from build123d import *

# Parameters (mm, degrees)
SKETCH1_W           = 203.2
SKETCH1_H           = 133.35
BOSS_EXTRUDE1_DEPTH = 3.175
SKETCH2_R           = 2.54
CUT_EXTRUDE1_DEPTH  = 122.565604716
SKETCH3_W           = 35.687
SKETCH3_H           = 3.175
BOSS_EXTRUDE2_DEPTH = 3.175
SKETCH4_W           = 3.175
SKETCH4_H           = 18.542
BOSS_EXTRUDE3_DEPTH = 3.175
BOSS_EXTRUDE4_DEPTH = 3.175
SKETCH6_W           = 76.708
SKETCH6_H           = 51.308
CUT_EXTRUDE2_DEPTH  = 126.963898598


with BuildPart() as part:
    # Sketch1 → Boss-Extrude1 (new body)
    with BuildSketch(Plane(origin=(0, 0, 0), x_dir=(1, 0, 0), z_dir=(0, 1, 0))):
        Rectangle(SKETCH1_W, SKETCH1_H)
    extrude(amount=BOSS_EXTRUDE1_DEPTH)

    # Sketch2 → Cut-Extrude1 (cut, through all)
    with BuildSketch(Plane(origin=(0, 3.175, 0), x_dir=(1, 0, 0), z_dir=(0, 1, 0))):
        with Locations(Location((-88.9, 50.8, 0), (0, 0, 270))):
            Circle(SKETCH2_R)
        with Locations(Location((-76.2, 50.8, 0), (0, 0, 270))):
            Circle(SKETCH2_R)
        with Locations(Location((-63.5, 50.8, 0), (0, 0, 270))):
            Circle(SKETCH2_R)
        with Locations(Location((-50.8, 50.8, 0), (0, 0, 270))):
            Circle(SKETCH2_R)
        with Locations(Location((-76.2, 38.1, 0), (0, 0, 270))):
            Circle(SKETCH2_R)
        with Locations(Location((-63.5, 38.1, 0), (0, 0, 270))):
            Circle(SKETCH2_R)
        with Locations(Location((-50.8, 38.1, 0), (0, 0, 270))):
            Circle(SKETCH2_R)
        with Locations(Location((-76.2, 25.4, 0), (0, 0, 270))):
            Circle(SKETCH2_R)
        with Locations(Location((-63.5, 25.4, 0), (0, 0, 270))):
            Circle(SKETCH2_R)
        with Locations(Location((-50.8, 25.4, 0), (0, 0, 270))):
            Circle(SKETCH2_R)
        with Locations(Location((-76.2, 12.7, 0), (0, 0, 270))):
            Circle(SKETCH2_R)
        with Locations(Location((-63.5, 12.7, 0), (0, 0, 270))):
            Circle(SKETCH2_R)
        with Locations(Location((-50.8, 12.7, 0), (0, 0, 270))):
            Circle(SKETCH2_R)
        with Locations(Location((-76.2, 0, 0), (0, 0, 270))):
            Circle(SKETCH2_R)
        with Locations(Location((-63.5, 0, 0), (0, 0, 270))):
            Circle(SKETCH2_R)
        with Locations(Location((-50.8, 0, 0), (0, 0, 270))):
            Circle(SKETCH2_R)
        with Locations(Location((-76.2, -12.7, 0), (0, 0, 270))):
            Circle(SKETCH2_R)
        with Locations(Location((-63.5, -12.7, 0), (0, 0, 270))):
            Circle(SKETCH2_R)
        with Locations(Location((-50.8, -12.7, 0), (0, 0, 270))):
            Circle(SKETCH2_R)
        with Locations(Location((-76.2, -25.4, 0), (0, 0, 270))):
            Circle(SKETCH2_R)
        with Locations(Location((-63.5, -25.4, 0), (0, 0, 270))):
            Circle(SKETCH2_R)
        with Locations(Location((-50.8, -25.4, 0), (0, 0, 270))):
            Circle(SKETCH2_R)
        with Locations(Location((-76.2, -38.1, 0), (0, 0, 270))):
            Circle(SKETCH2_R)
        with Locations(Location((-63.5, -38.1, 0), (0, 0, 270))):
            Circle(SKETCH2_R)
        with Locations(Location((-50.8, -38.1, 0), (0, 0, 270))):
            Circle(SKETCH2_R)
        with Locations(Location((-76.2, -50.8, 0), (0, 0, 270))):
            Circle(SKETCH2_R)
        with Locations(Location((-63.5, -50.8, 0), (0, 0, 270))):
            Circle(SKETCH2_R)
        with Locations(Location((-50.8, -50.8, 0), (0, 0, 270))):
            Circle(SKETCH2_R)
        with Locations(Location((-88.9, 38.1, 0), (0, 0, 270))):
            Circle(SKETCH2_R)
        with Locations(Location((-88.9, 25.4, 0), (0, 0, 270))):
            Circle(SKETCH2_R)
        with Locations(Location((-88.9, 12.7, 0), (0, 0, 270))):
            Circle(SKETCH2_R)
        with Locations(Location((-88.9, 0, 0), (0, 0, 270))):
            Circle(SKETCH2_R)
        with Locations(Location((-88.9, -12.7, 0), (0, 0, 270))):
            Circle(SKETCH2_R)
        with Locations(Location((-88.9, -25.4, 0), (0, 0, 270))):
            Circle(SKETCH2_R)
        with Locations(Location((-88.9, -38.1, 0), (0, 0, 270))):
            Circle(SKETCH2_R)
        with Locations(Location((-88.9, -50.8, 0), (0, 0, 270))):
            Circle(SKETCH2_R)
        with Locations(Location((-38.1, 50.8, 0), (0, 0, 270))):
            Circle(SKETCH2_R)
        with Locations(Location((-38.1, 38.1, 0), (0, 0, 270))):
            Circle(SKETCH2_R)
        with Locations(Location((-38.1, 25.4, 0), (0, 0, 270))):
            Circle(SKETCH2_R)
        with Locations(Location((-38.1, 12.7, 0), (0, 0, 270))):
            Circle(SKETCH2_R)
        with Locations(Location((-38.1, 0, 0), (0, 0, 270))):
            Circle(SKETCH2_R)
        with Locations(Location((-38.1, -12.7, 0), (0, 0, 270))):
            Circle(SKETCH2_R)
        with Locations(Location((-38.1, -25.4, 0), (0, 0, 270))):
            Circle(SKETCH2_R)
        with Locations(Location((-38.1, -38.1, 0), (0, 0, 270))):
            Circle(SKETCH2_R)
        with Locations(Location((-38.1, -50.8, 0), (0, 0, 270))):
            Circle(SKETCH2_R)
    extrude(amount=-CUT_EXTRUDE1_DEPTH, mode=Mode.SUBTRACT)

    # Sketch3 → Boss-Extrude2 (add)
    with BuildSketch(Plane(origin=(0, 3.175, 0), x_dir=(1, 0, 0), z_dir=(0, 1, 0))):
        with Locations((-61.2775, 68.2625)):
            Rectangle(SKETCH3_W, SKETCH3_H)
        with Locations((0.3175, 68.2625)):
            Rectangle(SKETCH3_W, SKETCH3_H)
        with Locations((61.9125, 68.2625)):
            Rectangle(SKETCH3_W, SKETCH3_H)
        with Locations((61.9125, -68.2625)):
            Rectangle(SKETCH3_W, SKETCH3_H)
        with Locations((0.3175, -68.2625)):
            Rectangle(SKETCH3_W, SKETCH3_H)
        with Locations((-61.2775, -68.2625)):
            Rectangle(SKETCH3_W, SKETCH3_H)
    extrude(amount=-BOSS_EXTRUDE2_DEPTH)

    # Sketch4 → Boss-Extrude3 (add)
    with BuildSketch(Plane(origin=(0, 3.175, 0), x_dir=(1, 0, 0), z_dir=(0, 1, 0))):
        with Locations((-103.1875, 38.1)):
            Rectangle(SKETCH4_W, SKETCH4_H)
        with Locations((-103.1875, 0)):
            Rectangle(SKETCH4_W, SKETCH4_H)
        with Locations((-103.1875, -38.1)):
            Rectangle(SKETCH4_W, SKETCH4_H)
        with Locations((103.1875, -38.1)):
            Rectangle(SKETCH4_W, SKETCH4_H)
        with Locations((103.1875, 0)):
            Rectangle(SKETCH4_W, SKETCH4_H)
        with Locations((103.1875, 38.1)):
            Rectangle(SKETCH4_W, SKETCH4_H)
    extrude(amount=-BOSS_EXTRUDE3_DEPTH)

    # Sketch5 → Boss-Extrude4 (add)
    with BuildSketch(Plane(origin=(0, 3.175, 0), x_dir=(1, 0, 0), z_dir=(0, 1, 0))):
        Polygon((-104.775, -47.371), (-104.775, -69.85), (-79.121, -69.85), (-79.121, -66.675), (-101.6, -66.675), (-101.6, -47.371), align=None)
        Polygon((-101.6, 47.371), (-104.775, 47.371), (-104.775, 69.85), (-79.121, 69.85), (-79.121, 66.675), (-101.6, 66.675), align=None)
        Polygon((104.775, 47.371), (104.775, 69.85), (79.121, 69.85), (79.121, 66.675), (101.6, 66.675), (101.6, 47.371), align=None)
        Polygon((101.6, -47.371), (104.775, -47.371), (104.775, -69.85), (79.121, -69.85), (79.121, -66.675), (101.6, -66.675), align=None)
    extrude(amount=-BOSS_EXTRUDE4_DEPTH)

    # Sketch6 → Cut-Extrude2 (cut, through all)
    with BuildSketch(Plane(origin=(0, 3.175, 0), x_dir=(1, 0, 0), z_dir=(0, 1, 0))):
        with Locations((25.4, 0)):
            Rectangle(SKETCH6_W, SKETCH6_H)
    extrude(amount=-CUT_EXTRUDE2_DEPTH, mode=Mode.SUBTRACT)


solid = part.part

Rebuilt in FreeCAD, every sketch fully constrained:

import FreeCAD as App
import Part
import Sketcher
Q = App.Units.Quantity


def add_polygon(sketch, points):
    """Adds a closed chain of lines whose ends are joined by coincident constraints."""
    first, n = sketch.GeometryCount, len(points)
    for a, b in zip(points, points[1:] + points[:1]):
        sketch.addGeometry(Part.LineSegment(App.Vector(*a, 0), App.Vector(*b, 0)), False)
    for i in range(n):
        sketch.addConstraint(Sketcher.Constraint("Coincident", first + i, 2, first + (i + 1) % n, 1))

doc = App.newDocument("Part")
body = doc.addObject("PartDesign::Body", "Body")

sketch1 = body.newObject("Sketcher::SketchObject", "Sketch")
sketch1.AttachmentSupport = (doc.getObject("XZ_Plane"), [""])
sketch1.MapMode = "FlatFace"
add_polygon(sketch1, [(-102, -67), (-102, 67), (102, 67), (102, -67)])
sketch1.addConstraint(Sketcher.Constraint("Vertical", 0))
sketch1.addConstraint(Sketcher.Constraint("Horizontal", 1))
sketch1.addConstraint(Sketcher.Constraint("Vertical", 2))
sketch1.addConstraint(Sketcher.Constraint("Horizontal", 3))
sketch1.addConstraint(Sketcher.Constraint("Symmetric", 0, 2, 2, 2, -1, 1))
sketch1.addConstraint(Sketcher.Constraint("DistanceX", 1, 1, 1, 2, Q("8 in")))
sketch1.addConstraint(Sketcher.Constraint("DistanceY", 0, 1, 0, 2, Q("5.25 in")))
pad1 = body.newObject("PartDesign::Pad", "Pad")
pad1.Profile = sketch1
pad1.Length = Q("0.125 in")
pad1.Reversed = True

sketch2 = body.newObject("Sketcher::SketchObject", "Sketch001")
sketch2.AttachmentSupport = (doc.getObject("XZ_Plane"), [""])
sketch2.MapMode = "FlatFace"
sketch2.AttachmentOffset = App.Placement(App.Vector(0, 0, -0.125 * 25.4), App.Rotation())
sketch2.addGeometry(Part.Circle(App.Vector(-88.9, -50.8, 0), App.Vector(0, 0, 1), 2.5), False)
sketch2.addGeometry(Part.Circle(App.Vector(-76.2, -50.8, 0), App.Vector(0, 0, 1), 2.5), False)
sketch2.addGeometry(Part.Circle(App.Vector(-63.5, -50.8, 0), App.Vector(0, 0, 1), 2.5), False)
sketch2.addGeometry(Part.Circle(App.Vector(-50.8, -50.8, 0), App.Vector(0, 0, 1), 2.5), False)
sketch2.addGeometry(Part.Circle(App.Vector(-76.2, -38.1, 0), App.Vector(0, 0, 1), 2.5), False)
sketch2.addGeometry(Part.Circle(App.Vector(-63.5, -38.1, 0), App.Vector(0, 0, 1), 2.5), False)
sketch2.addGeometry(Part.Circle(App.Vector(-50.8, -38.1, 0), App.Vector(0, 0, 1), 2.5), False)
sketch2.addGeometry(Part.Circle(App.Vector(-76.2, -25.4, 0), App.Vector(0, 0, 1), 2.5), False)
sketch2.addGeometry(Part.Circle(App.Vector(-63.5, -25.4, 0), App.Vector(0, 0, 1), 2.5), False)
sketch2.addGeometry(Part.Circle(App.Vector(-50.8, -25.4, 0), App.Vector(0, 0, 1), 2.5), False)
sketch2.addGeometry(Part.Circle(App.Vector(-76.2, -12.7, 0), App.Vector(0, 0, 1), 2.5), False)
sketch2.addGeometry(Part.Circle(App.Vector(-63.5, -12.7, 0), App.Vector(0, 0, 1), 2.5), False)
sketch2.addGeometry(Part.Circle(App.Vector(-50.8, -12.7, 0), App.Vector(0, 0, 1), 2.5), False)
sketch2.addGeometry(Part.Circle(App.Vector(-76.2, 0, 0), App.Vector(0, 0, 1), 2.5), False)
sketch2.addGeometry(Part.Circle(App.Vector(-63.5, 0, 0), App.Vector(0, 0, 1), 2.5), False)
sketch2.addGeometry(Part.Circle(App.Vector(-50.8, 0, 0), App.Vector(0, 0, 1), 2.5), False)
sketch2.addGeometry(Part.Circle(App.Vector(-76.2, 12.7, 0), App.Vector(0, 0, 1), 2.5), False)
sketch2.addGeometry(Part.Circle(App.Vector(-63.5, 12.7, 0), App.Vector(0, 0, 1), 2.5), False)
sketch2.addGeometry(Part.Circle(App.Vector(-50.8, 12.7, 0), App.Vector(0, 0, 1), 2.5), False)
sketch2.addGeometry(Part.Circle(App.Vector(-76.2, 25.4, 0), App.Vector(0, 0, 1), 2.5), False)
sketch2.addGeometry(Part.Circle(App.Vector(-63.5, 25.4, 0), App.Vector(0, 0, 1), 2.5), False)
sketch2.addGeometry(Part.Circle(App.Vector(-50.8, 25.4, 0), App.Vector(0, 0, 1), 2.5), False)
sketch2.addGeometry(Part.Circle(App.Vector(-76.2, 38.1, 0), App.Vector(0, 0, 1), 2.5), False)
sketch2.addGeometry(Part.Circle(App.Vector(-63.5, 38.1, 0), App.Vector(0, 0, 1), 2.5), False)
sketch2.addGeometry(Part.Circle(App.Vector(-50.8, 38.1, 0), App.Vector(0, 0, 1), 2.5), False)
sketch2.addGeometry(Part.Circle(App.Vector(-76.2, 50.8, 0), App.Vector(0, 0, 1), 2.5), False)
sketch2.addGeometry(Part.Circle(App.Vector(-63.5, 50.8, 0), App.Vector(0, 0, 1), 2.5), False)
sketch2.addGeometry(Part.Circle(App.Vector(-50.8, 50.8, 0), App.Vector(0, 0, 1), 2.5), False)
sketch2.addGeometry(Part.Circle(App.Vector(-88.9, -38.1, 0), App.Vector(0, 0, 1), 2.5), False)
sketch2.addGeometry(Part.Circle(App.Vector(-88.9, -25.4, 0), App.Vector(0, 0, 1), 2.5), False)
sketch2.addGeometry(Part.Circle(App.Vector(-88.9, -12.7, 0), App.Vector(0, 0, 1), 2.5), False)
sketch2.addGeometry(Part.Circle(App.Vector(-88.9, 0, 0), App.Vector(0, 0, 1), 2.5), False)
sketch2.addGeometry(Part.Circle(App.Vector(-88.9, 12.7, 0), App.Vector(0, 0, 1), 2.5), False)
sketch2.addGeometry(Part.Circle(App.Vector(-88.9, 25.4, 0), App.Vector(0, 0, 1), 2.5), False)
sketch2.addGeometry(Part.Circle(App.Vector(-88.9, 38.1, 0), App.Vector(0, 0, 1), 2.5), False)
sketch2.addGeometry(Part.Circle(App.Vector(-88.9, 50.8, 0), App.Vector(0, 0, 1), 2.5), False)
sketch2.addGeometry(Part.Circle(App.Vector(-38.1, -50.8, 0), App.Vector(0, 0, 1), 2.5), False)
sketch2.addGeometry(Part.Circle(App.Vector(-38.1, -38.1, 0), App.Vector(0, 0, 1), 2.5), False)
sketch2.addGeometry(Part.Circle(App.Vector(-38.1, -25.4, 0), App.Vector(0, 0, 1), 2.5), False)
sketch2.addGeometry(Part.Circle(App.Vector(-38.1, -12.7, 0), App.Vector(0, 0, 1), 2.5), False)
sketch2.addGeometry(Part.Circle(App.Vector(-38.1, 0, 0), App.Vector(0, 0, 1), 2.5), False)
sketch2.addGeometry(Part.Circle(App.Vector(-38.1, 12.7, 0), App.Vector(0, 0, 1), 2.5), False)
sketch2.addGeometry(Part.Circle(App.Vector(-38.1, 25.4, 0), App.Vector(0, 0, 1), 2.5), False)
sketch2.addGeometry(Part.Circle(App.Vector(-38.1, 38.1, 0), App.Vector(0, 0, 1), 2.5), False)
sketch2.addGeometry(Part.Circle(App.Vector(-38.1, 50.8, 0), App.Vector(0, 0, 1), 2.5), False)
sketch2.addConstraint(Sketcher.Constraint("Equal", 0, 1))
sketch2.addConstraint(Sketcher.Constraint("Equal", 1, 2))
sketch2.addConstraint(Sketcher.Constraint("Equal", 2, 3))
sketch2.addConstraint(Sketcher.Constraint("Equal", 3, 4))
sketch2.addConstraint(Sketcher.Constraint("Equal", 4, 5))
sketch2.addConstraint(Sketcher.Constraint("Equal", 5, 6))
sketch2.addConstraint(Sketcher.Constraint("Equal", 6, 7))
sketch2.addConstraint(Sketcher.Constraint("Equal", 7, 8))
sketch2.addConstraint(Sketcher.Constraint("Equal", 8, 9))
sketch2.addConstraint(Sketcher.Constraint("Equal", 9, 10))
sketch2.addConstraint(Sketcher.Constraint("Equal", 10, 11))
sketch2.addConstraint(Sketcher.Constraint("Equal", 11, 12))
sketch2.addConstraint(Sketcher.Constraint("Equal", 12, 13))
sketch2.addConstraint(Sketcher.Constraint("Equal", 13, 14))
sketch2.addConstraint(Sketcher.Constraint("Equal", 14, 15))
sketch2.addConstraint(Sketcher.Constraint("Equal", 15, 16))
sketch2.addConstraint(Sketcher.Constraint("Equal", 16, 17))
sketch2.addConstraint(Sketcher.Constraint("Equal", 17, 18))
sketch2.addConstraint(Sketcher.Constraint("Equal", 18, 19))
sketch2.addConstraint(Sketcher.Constraint("Equal", 19, 20))
sketch2.addConstraint(Sketcher.Constraint("Equal", 20, 21))
sketch2.addConstraint(Sketcher.Constraint("Equal", 21, 22))
sketch2.addConstraint(Sketcher.Constraint("Equal", 22, 23))
sketch2.addConstraint(Sketcher.Constraint("Equal", 23, 24))
sketch2.addConstraint(Sketcher.Constraint("Equal", 24, 25))
sketch2.addConstraint(Sketcher.Constraint("Equal", 25, 26))
sketch2.addConstraint(Sketcher.Constraint("Equal", 26, 27))
sketch2.addConstraint(Sketcher.Constraint("Equal", 27, 28))
sketch2.addConstraint(Sketcher.Constraint("Equal", 28, 29))
sketch2.addConstraint(Sketcher.Constraint("Equal", 29, 30))
sketch2.addConstraint(Sketcher.Constraint("Equal", 30, 31))
sketch2.addConstraint(Sketcher.Constraint("Equal", 31, 32))
sketch2.addConstraint(Sketcher.Constraint("Equal", 32, 33))
sketch2.addConstraint(Sketcher.Constraint("Equal", 33, 34))
sketch2.addConstraint(Sketcher.Constraint("Equal", 34, 35))
sketch2.addConstraint(Sketcher.Constraint("Equal", 35, 36))
sketch2.addConstraint(Sketcher.Constraint("Equal", 36, 37))
sketch2.addConstraint(Sketcher.Constraint("Equal", 37, 38))
sketch2.addConstraint(Sketcher.Constraint("Equal", 38, 39))
sketch2.addConstraint(Sketcher.Constraint("Equal", 39, 40))
sketch2.addConstraint(Sketcher.Constraint("Equal", 40, 41))
sketch2.addConstraint(Sketcher.Constraint("Equal", 41, 42))
sketch2.addConstraint(Sketcher.Constraint("Equal", 42, 43))
sketch2.addConstraint(Sketcher.Constraint("Equal", 43, 44))
sketch2.addConstraint(Sketcher.Constraint("Symmetric", 10, 3, 16, 3, -1))
sketch2.addConstraint(Sketcher.Constraint("Symmetric", 11, 3, 17, 3, -1))
sketch2.addConstraint(Sketcher.Constraint("Symmetric", 12, 3, 18, 3, -1))
sketch2.addConstraint(Sketcher.Constraint("Symmetric", 7, 3, 19, 3, -1))
sketch2.addConstraint(Sketcher.Constraint("Symmetric", 8, 3, 20, 3, -1))
sketch2.addConstraint(Sketcher.Constraint("Symmetric", 9, 3, 21, 3, -1))
sketch2.addConstraint(Sketcher.Constraint("Symmetric", 4, 3, 22, 3, -1))
sketch2.addConstraint(Sketcher.Constraint("Symmetric", 5, 3, 23, 3, -1))
sketch2.addConstraint(Sketcher.Constraint("Symmetric", 6, 3, 24, 3, -1))
sketch2.addConstraint(Sketcher.Constraint("Symmetric", 1, 3, 25, 3, -1))
sketch2.addConstraint(Sketcher.Constraint("Symmetric", 2, 3, 26, 3, -1))
sketch2.addConstraint(Sketcher.Constraint("Symmetric", 3, 3, 27, 3, -1))
sketch2.addConstraint(Sketcher.Constraint("Symmetric", 30, 3, 32, 3, -1))
sketch2.addConstraint(Sketcher.Constraint("Symmetric", 29, 3, 33, 3, -1))
sketch2.addConstraint(Sketcher.Constraint("Symmetric", 28, 3, 34, 3, -1))
sketch2.addConstraint(Sketcher.Constraint("Symmetric", 0, 3, 35, 3, -1))
sketch2.addConstraint(Sketcher.Constraint("Symmetric", 39, 3, 41, 3, -1))
sketch2.addConstraint(Sketcher.Constraint("Symmetric", 38, 3, 42, 3, -1))
sketch2.addConstraint(Sketcher.Constraint("Symmetric", 37, 3, 43, 3, -1))
sketch2.addConstraint(Sketcher.Constraint("Symmetric", 36, 3, 44, 3, -1))
sketch2.addConstraint(Sketcher.Constraint("PointOnObject", 13, 3, -1))
sketch2.addConstraint(Sketcher.Constraint("PointOnObject", 14, 3, -1))
sketch2.addConstraint(Sketcher.Constraint("PointOnObject", 15, 3, -1))
sketch2.addConstraint(Sketcher.Constraint("PointOnObject", 31, 3, -1))
sketch2.addConstraint(Sketcher.Constraint("PointOnObject", 40, 3, -1))
sketch2.addConstraint(Sketcher.Constraint("Horizontal", 0, 3, 1, 3))
sketch2.addConstraint(Sketcher.Constraint("Horizontal", 1, 3, 2, 3))
sketch2.addConstraint(Sketcher.Constraint("Horizontal", 2, 3, 3, 3))
sketch2.addConstraint(Sketcher.Constraint("Horizontal", 4, 3, 5, 3))
sketch2.addConstraint(Sketcher.Constraint("Horizontal", 5, 3, 6, 3))
sketch2.addConstraint(Sketcher.Constraint("Horizontal", 7, 3, 8, 3))
sketch2.addConstraint(Sketcher.Constraint("Horizontal", 8, 3, 9, 3))
sketch2.addConstraint(Sketcher.Constraint("Horizontal", 10, 3, 11, 3))
sketch2.addConstraint(Sketcher.Constraint("Horizontal", 11, 3, 12, 3))
sketch2.addConstraint(Sketcher.Constraint("Horizontal", 6, 3, 28, 3))
sketch2.addConstraint(Sketcher.Constraint("Horizontal", 9, 3, 29, 3))
sketch2.addConstraint(Sketcher.Constraint("Horizontal", 12, 3, 30, 3))
sketch2.addConstraint(Sketcher.Constraint("Horizontal", 3, 3, 36, 3))
sketch2.addConstraint(Sketcher.Constraint("Horizontal", 28, 3, 37, 3))
sketch2.addConstraint(Sketcher.Constraint("Horizontal", 29, 3, 38, 3))
sketch2.addConstraint(Sketcher.Constraint("Horizontal", 30, 3, 39, 3))
sketch2.addConstraint(Sketcher.Constraint("Vertical", 1, 3, 4, 3))
sketch2.addConstraint(Sketcher.Constraint("Vertical", 2, 3, 5, 3))
sketch2.addConstraint(Sketcher.Constraint("Vertical", 3, 3, 6, 3))
sketch2.addConstraint(Sketcher.Constraint("Vertical", 4, 3, 7, 3))
sketch2.addConstraint(Sketcher.Constraint("Vertical", 5, 3, 8, 3))
sketch2.addConstraint(Sketcher.Constraint("Vertical", 6, 3, 9, 3))
sketch2.addConstraint(Sketcher.Constraint("Vertical", 7, 3, 10, 3))
sketch2.addConstraint(Sketcher.Constraint("Vertical", 8, 3, 11, 3))
sketch2.addConstraint(Sketcher.Constraint("Vertical", 9, 3, 12, 3))
sketch2.addConstraint(Sketcher.Constraint("Vertical", 10, 3, 13, 3))
sketch2.addConstraint(Sketcher.Constraint("Vertical", 11, 3, 14, 3))
sketch2.addConstraint(Sketcher.Constraint("Vertical", 12, 3, 15, 3))
sketch2.addConstraint(Sketcher.Constraint("Vertical", 0, 3, 28, 3))
sketch2.addConstraint(Sketcher.Constraint("Vertical", 28, 3, 29, 3))
sketch2.addConstraint(Sketcher.Constraint("Vertical", 29, 3, 30, 3))
sketch2.addConstraint(Sketcher.Constraint("Vertical", 30, 3, 31, 3))
sketch2.addConstraint(Sketcher.Constraint("Vertical", 36, 3, 37, 3))
sketch2.addConstraint(Sketcher.Constraint("Vertical", 37, 3, 38, 3))
sketch2.addConstraint(Sketcher.Constraint("Vertical", 38, 3, 39, 3))
sketch2.addConstraint(Sketcher.Constraint("Vertical", 39, 3, 40, 3))
sketch2.addConstraint(Sketcher.Constraint("Diameter", 0, Q("0.2 in")))
sketch2.addConstraint(Sketcher.Constraint("DistanceY", 0, 3, -1, 1, Q("2 in")))
sketch2.addConstraint(Sketcher.Constraint("DistanceX", 1, 3, -1, 1, Q("3 in")))
sketch2.addConstraint(Sketcher.Constraint("DistanceX", 3, 3, -1, 1, Q("2 in")))
sketch2.addConstraint(Sketcher.Constraint("DistanceY", 7, 3, -1, 1, Q("1 in")))
sketch2.addConstraint(Sketcher.Constraint("DistanceX", 0, 3, 2, 3, Q("1 in")))
sketch2.addConstraint(Sketcher.Constraint("DistanceY", 4, 3, 10, 3, Q("1 in")))
sketch2.addConstraint(Sketcher.Constraint("DistanceY", 10, 3, 16, 3, Q("1 in")))
sketch2.addConstraint(Sketcher.Constraint("DistanceX", 2, 3, 36, 3, Q("1 in")))
sketch2.addConstraint(Sketcher.Constraint("DistanceX", 0, 3, -1, 1, Q("3.5 in")))
pocket1 = body.newObject("PartDesign::Pocket", "Pocket")
pocket1.Profile = sketch2
pocket1.Type = "ThroughAll"
pocket1.Reversed = True

sketch3 = body.newObject("Sketcher::SketchObject", "Sketch002")
sketch3.AttachmentSupport = (doc.getObject("XZ_Plane"), [""])
sketch3.MapMode = "FlatFace"
sketch3.AttachmentOffset = App.Placement(App.Vector(0, 0, -0.125 * 25.4), App.Rotation())
add_polygon(sketch3, [(-79.1, -69.8), (-79.1, -66.7), (-43.4, -66.7), (-43.4, -69.8)])
add_polygon(sketch3, [(-17.5, -69.8), (-17.5, -66.7), (18.2, -66.7), (18.2, -69.8)])
add_polygon(sketch3, [(44.1, -69.8), (44.1, -66.7), (79.8, -66.7), (79.8, -69.8)])
add_polygon(sketch3, [(44.1, 66.7), (44.1, 69.8), (79.8, 69.8), (79.8, 66.7)])
add_polygon(sketch3, [(-17.5, 66.7), (-17.5, 69.8), (18.2, 69.8), (18.2, 66.7)])
add_polygon(sketch3, [(-79.1, 66.7), (-79.1, 69.8), (-43.4, 69.8), (-43.4, 66.7)])
sketch3.addConstraint(Sketcher.Constraint("Vertical", 0))
sketch3.addConstraint(Sketcher.Constraint("Horizontal", 1))
sketch3.addConstraint(Sketcher.Constraint("Vertical", 2))
sketch3.addConstraint(Sketcher.Constraint("Horizontal", 3))
sketch3.addConstraint(Sketcher.Constraint("Vertical", 4))
sketch3.addConstraint(Sketcher.Constraint("Horizontal", 5))
sketch3.addConstraint(Sketcher.Constraint("Vertical", 6))
sketch3.addConstraint(Sketcher.Constraint("Horizontal", 7))
sketch3.addConstraint(Sketcher.Constraint("Vertical", 8))
sketch3.addConstraint(Sketcher.Constraint("Horizontal", 9))
sketch3.addConstraint(Sketcher.Constraint("Vertical", 10))
sketch3.addConstraint(Sketcher.Constraint("Horizontal", 11))
sketch3.addConstraint(Sketcher.Constraint("Vertical", 12))
sketch3.addConstraint(Sketcher.Constraint("Horizontal", 13))
sketch3.addConstraint(Sketcher.Constraint("Vertical", 14))
sketch3.addConstraint(Sketcher.Constraint("Horizontal", 15))
sketch3.addConstraint(Sketcher.Constraint("Vertical", 16))
sketch3.addConstraint(Sketcher.Constraint("Horizontal", 17))
sketch3.addConstraint(Sketcher.Constraint("Vertical", 18))
sketch3.addConstraint(Sketcher.Constraint("Horizontal", 19))
sketch3.addConstraint(Sketcher.Constraint("Vertical", 20))
sketch3.addConstraint(Sketcher.Constraint("Horizontal", 21))
sketch3.addConstraint(Sketcher.Constraint("Vertical", 22))
sketch3.addConstraint(Sketcher.Constraint("Horizontal", 23))
sketch3.addConstraint(Sketcher.Constraint("Symmetric", 11, 2, 12, 2, -1))
sketch3.addConstraint(Sketcher.Constraint("Symmetric", 9, 2, 14, 2, -1))
sketch3.addConstraint(Sketcher.Constraint("Symmetric", 7, 2, 16, 2, -1))
sketch3.addConstraint(Sketcher.Constraint("Symmetric", 5, 2, 18, 2, -1))
sketch3.addConstraint(Sketcher.Constraint("Symmetric", 3, 2, 20, 2, -1))
sketch3.addConstraint(Sketcher.Constraint("Symmetric", 1, 2, 22, 2, -1))
sketch3.addConstraint(Sketcher.Constraint("Horizontal", 1, 2, 4, 2))
sketch3.addConstraint(Sketcher.Constraint("Horizontal", 3, 2, 6, 2))
sketch3.addConstraint(Sketcher.Constraint("Horizontal", 5, 2, 8, 2))
sketch3.addConstraint(Sketcher.Constraint("Horizontal", 7, 2, 10, 2))
sketch3.addConstraint(Sketcher.Constraint("Equal", 3, 5))
sketch3.addConstraint(Sketcher.Constraint("Equal", 7, 9))
sketch3.addConstraint(Sketcher.Constraint("DistanceY", 11, 2, 12, 2, Q("5.5 in")))
sketch3.addConstraint(Sketcher.Constraint("DistanceX", 1, 1, 1, 2, Q("1.405 in")))
sketch3.addConstraint(Sketcher.Constraint("DistanceY", 0, 1, 0, 2, Q("0.125 in")))
sketch3.addConstraint(Sketcher.Constraint("DistanceX", 1, 2, -1, 1, Q("1.71 in")))
sketch3.addConstraint(Sketcher.Constraint("DistanceX", 4, 2, -1, 1, Q("0.69 in")))
sketch3.addConstraint(Sketcher.Constraint("DistanceX", -1, 1, 9, 2, Q("3.14 in")))
pad2 = body.newObject("PartDesign::Pad", "Pad001")
pad2.Profile = sketch3
pad2.Length = Q("0.125 in")

sketch4 = body.newObject("Sketcher::SketchObject", "Sketch003")
sketch4.AttachmentSupport = (doc.getObject("XZ_Plane"), [""])
sketch4.MapMode = "FlatFace"
sketch4.AttachmentOffset = App.Placement(App.Vector(0, 0, -0.125 * 25.4), App.Rotation())
add_polygon(sketch4, [(-104.8, -47.4), (-104.8, -28.8), (-101.6, -28.8), (-101.6, -47.4)])
add_polygon(sketch4, [(-104.8, -9.3), (-104.8, 9.3), (-101.6, 9.3), (-101.6, -9.3)])
add_polygon(sketch4, [(-104.8, 28.8), (-104.8, 47.4), (-101.6, 47.4), (-101.6, 28.8)])
add_polygon(sketch4, [(101.6, 28.8), (101.6, 47.4), (104.8, 47.4), (104.8, 28.8)])
add_polygon(sketch4, [(101.6, -9.3), (101.6, 9.3), (104.8, 9.3), (104.8, -9.3)])
add_polygon(sketch4, [(101.6, -47.4), (101.6, -28.8), (104.8, -28.8), (104.8, -47.4)])
sketch4.addConstraint(Sketcher.Constraint("Vertical", 0))
sketch4.addConstraint(Sketcher.Constraint("Horizontal", 1))
sketch4.addConstraint(Sketcher.Constraint("Vertical", 2))
sketch4.addConstraint(Sketcher.Constraint("Horizontal", 3))
sketch4.addConstraint(Sketcher.Constraint("Vertical", 4))
sketch4.addConstraint(Sketcher.Constraint("Horizontal", 5))
sketch4.addConstraint(Sketcher.Constraint("Vertical", 6))
sketch4.addConstraint(Sketcher.Constraint("Horizontal", 7))
sketch4.addConstraint(Sketcher.Constraint("Vertical", 8))
sketch4.addConstraint(Sketcher.Constraint("Horizontal", 9))
sketch4.addConstraint(Sketcher.Constraint("Vertical", 10))
sketch4.addConstraint(Sketcher.Constraint("Horizontal", 11))
sketch4.addConstraint(Sketcher.Constraint("Vertical", 12))
sketch4.addConstraint(Sketcher.Constraint("Horizontal", 13))
sketch4.addConstraint(Sketcher.Constraint("Vertical", 14))
sketch4.addConstraint(Sketcher.Constraint("Horizontal", 15))
sketch4.addConstraint(Sketcher.Constraint("Vertical", 16))
sketch4.addConstraint(Sketcher.Constraint("Horizontal", 17))
sketch4.addConstraint(Sketcher.Constraint("Vertical", 18))
sketch4.addConstraint(Sketcher.Constraint("Horizontal", 19))
sketch4.addConstraint(Sketcher.Constraint("Vertical", 20))
sketch4.addConstraint(Sketcher.Constraint("Horizontal", 21))
sketch4.addConstraint(Sketcher.Constraint("Vertical", 22))
sketch4.addConstraint(Sketcher.Constraint("Horizontal", 23))
sketch4.addConstraint(Sketcher.Constraint("Symmetric", 2, 2, 12, 2, -1, 1))
sketch4.addConstraint(Sketcher.Constraint("Symmetric", 0, 2, 14, 2, -1, 1))
sketch4.addConstraint(Sketcher.Constraint("Symmetric", 6, 2, 16, 2, -1, 1))
sketch4.addConstraint(Sketcher.Constraint("Symmetric", 4, 2, 18, 2, -1, 1))
sketch4.addConstraint(Sketcher.Constraint("Symmetric", 10, 2, 20, 2, -1, 1))
sketch4.addConstraint(Sketcher.Constraint("Symmetric", 8, 2, 22, 2, -1, 1))
sketch4.addConstraint(Sketcher.Constraint("Symmetric", 9, 2, 12, 2, -2))
sketch4.addConstraint(Sketcher.Constraint("Symmetric", 11, 2, 14, 2, -2))
sketch4.addConstraint(Sketcher.Constraint("Horizontal", 5, 2, 16, 2))
sketch4.addConstraint(Sketcher.Constraint("Vertical", 3, 2, 4, 2))
sketch4.addConstraint(Sketcher.Constraint("Vertical", 2, 2, 5, 2))
sketch4.addConstraint(Sketcher.Constraint("Equal", 2, 4))
sketch4.addConstraint(Sketcher.Constraint("DistanceX", 1, 2, -1, 1, Q("4 in")))
sketch4.addConstraint(Sketcher.Constraint("DistanceY", 0, 2, 8, 2, Q("3 in")))
sketch4.addConstraint(Sketcher.Constraint("DistanceY", 0, 1, 0, 2, Q("0.73 in")))
sketch4.addConstraint(Sketcher.Constraint("DistanceX", 1, 1, 1, 2, Q("0.125 in")))
pad3 = body.newObject("PartDesign::Pad", "Pad002")
pad3.Profile = sketch4
pad3.Length = Q("0.125 in")

sketch5 = body.newObject("Sketcher::SketchObject", "Sketch004")
sketch5.AttachmentSupport = (doc.getObject("XZ_Plane"), [""])
sketch5.MapMode = "FlatFace"
sketch5.AttachmentOffset = App.Placement(App.Vector(0, 0, -0.125 * 25.4), App.Rotation())
add_polygon(sketch5, [(-104.8, 47.4), (-104.8, 69.8), (-79.1, 69.8), (-79.1, 66.7), (-101.6, 66.7), (-101.6, 47.4)])
add_polygon(sketch5, [(-104.8, -47.4), (-101.6, -47.4), (-101.6, -66.7), (-79.1, -66.7), (-79.1, -69.8), (-104.8, -69.8)])
add_polygon(sketch5, [(104.8, -47.4), (104.8, -69.8), (79.1, -69.8), (79.1, -66.7), (101.6, -66.7), (101.6, -47.4)])
add_polygon(sketch5, [(104.8, 47.4), (101.6, 47.4), (101.6, 66.7), (79.1, 66.7), (79.1, 69.8), (104.8, 69.8)])
sketch5.addConstraint(Sketcher.Constraint("Vertical", 0))
sketch5.addConstraint(Sketcher.Constraint("Horizontal", 1))
sketch5.addConstraint(Sketcher.Constraint("Vertical", 2))
sketch5.addConstraint(Sketcher.Constraint("Horizontal", 3))
sketch5.addConstraint(Sketcher.Constraint("Vertical", 4))
sketch5.addConstraint(Sketcher.Constraint("Horizontal", 5))
sketch5.addConstraint(Sketcher.Constraint("Horizontal", 6))
sketch5.addConstraint(Sketcher.Constraint("Vertical", 7))
sketch5.addConstraint(Sketcher.Constraint("Horizontal", 8))
sketch5.addConstraint(Sketcher.Constraint("Vertical", 9))
sketch5.addConstraint(Sketcher.Constraint("Horizontal", 10))
sketch5.addConstraint(Sketcher.Constraint("Vertical", 11))
sketch5.addConstraint(Sketcher.Constraint("Vertical", 12))
sketch5.addConstraint(Sketcher.Constraint("Horizontal", 13))
sketch5.addConstraint(Sketcher.Constraint("Vertical", 14))
sketch5.addConstraint(Sketcher.Constraint("Horizontal", 15))
sketch5.addConstraint(Sketcher.Constraint("Vertical", 16))
sketch5.addConstraint(Sketcher.Constraint("Horizontal", 17))
sketch5.addConstraint(Sketcher.Constraint("Horizontal", 18))
sketch5.addConstraint(Sketcher.Constraint("Vertical", 19))
sketch5.addConstraint(Sketcher.Constraint("Horizontal", 20))
sketch5.addConstraint(Sketcher.Constraint("Vertical", 21))
sketch5.addConstraint(Sketcher.Constraint("Horizontal", 22))
sketch5.addConstraint(Sketcher.Constraint("Vertical", 23))
sketch5.addConstraint(Sketcher.Constraint("Symmetric", 0, 2, 12, 2, -1, 1))
sketch5.addConstraint(Sketcher.Constraint("Symmetric", 2, 2, 14, 2, -1, 1))
sketch5.addConstraint(Sketcher.Constraint("Symmetric", 4, 2, 16, 2, -1, 1))
sketch5.addConstraint(Sketcher.Constraint("Symmetric", 6, 2, 18, 2, -1, 1))
sketch5.addConstraint(Sketcher.Constraint("Symmetric", 8, 2, 20, 2, -1, 1))
sketch5.addConstraint(Sketcher.Constraint("Symmetric", 10, 2, 22, 2, -1, 1))
sketch5.addConstraint(Sketcher.Constraint("Symmetric", 10, 2, 12, 2, -2))
sketch5.addConstraint(Sketcher.Constraint("Symmetric", 8, 2, 14, 2, -2))
sketch5.addConstraint(Sketcher.Constraint("Symmetric", 6, 2, 16, 2, -2))
sketch5.addConstraint(Sketcher.Constraint("Equal", 20, 0))
sketch5.addConstraint(Sketcher.Constraint("Equal", 18, 2))
sketch5.addConstraint(Sketcher.Constraint("DistanceX", 3, 2, -1, 1, Q("4 in")))
sketch5.addConstraint(Sketcher.Constraint("DistanceX", 1, 1, 1, 2, Q("1.01 in")))
sketch5.addConstraint(Sketcher.Constraint("DistanceY", 4, 2, 4, 1, Q("0.76 in")))
sketch5.addConstraint(Sketcher.Constraint("DistanceY", -1, 1, 0, 2, Q("2.75 in")))
pad4 = body.newObject("PartDesign::Pad", "Pad003")
pad4.Profile = sketch5
pad4.Length = Q("0.125 in")

sketch6 = body.newObject("Sketcher::SketchObject", "Sketch005")
sketch6.AttachmentSupport = (doc.getObject("XZ_Plane"), [""])
sketch6.MapMode = "FlatFace"
sketch6.AttachmentOffset = App.Placement(App.Vector(0, 0, -0.125 * 25.4), App.Rotation())
add_polygon(sketch6, [(-13, -26), (-13, 26), (64, 26), (64, -26)])
sketch6.addConstraint(Sketcher.Constraint("Vertical", 0))
sketch6.addConstraint(Sketcher.Constraint("Horizontal", 1))
sketch6.addConstraint(Sketcher.Constraint("Vertical", 2))
sketch6.addConstraint(Sketcher.Constraint("Horizontal", 3))
sketch6.addConstraint(Sketcher.Constraint("DistanceX", 1, 1, 1, 2, Q("3.02 in")))
sketch6.addConstraint(Sketcher.Constraint("DistanceY", 0, 1, 0, 2, Q("2.02 in")))
sketch6.addConstraint(Sketcher.Constraint("DistanceX", 0, 2, -1, 1, Q("0.51 in")))
sketch6.addConstraint(Sketcher.Constraint("DistanceY", -1, 1, 0, 2, Q("1.01 in")))
pocket2 = body.newObject("PartDesign::Pocket", "Pocket001")
pocket2.Profile = sketch6
pocket2.Type = "ThroughAll"
pocket2.Reversed = True

doc.recompute()
